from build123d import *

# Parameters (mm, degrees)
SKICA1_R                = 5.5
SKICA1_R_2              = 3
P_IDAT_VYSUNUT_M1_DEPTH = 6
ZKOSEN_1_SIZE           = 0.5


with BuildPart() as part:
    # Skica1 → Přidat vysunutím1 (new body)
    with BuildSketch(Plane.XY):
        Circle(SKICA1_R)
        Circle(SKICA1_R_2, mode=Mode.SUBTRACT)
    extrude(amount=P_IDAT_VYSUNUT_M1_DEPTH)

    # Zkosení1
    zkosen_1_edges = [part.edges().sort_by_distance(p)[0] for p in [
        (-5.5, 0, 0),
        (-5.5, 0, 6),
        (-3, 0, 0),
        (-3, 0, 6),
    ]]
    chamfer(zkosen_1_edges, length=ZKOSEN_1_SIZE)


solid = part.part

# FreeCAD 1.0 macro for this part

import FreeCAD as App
import Part
import Sketcher
from FreeCAD import Vector


def edges_at(feature, points):
    """Names of the edges that pass closest to the given points."""
    edges = feature.Shape.Edges
    near = lambda p: min(range(len(edges)), key=lambda i: edges[i].distToShape(Part.Vertex(*p))[0])
    return sorted({f"Edge{near(p) + 1}" for p in points})

doc = App.newDocument("Part")
body = doc.addObject("PartDesign::Body", "Body")

sketch1 = body.newObject("Sketcher::SketchObject", "Sketch")
sketch1.AttachmentSupport = (doc.getObject("XY_Plane"), [""])
sketch1.MapMode = "FlatFace"
sketch1.addGeometry(Part.Circle(Vector(0, 0, 0), Vector(0, 0, 1), 5.5), False)
sketch1.addGeometry(Part.Circle(Vector(0, 0, 0), Vector(0, 0, 1), 3), False)
sketch1.addConstraint(Sketcher.Constraint("Coincident", 0, 3, -1, 1))
sketch1.addConstraint(Sketcher.Constraint("Coincident", 1, 3, -1, 1))
sketch1.addConstraint(Sketcher.Constraint("Diameter", 0, 11.0))
sketch1.addConstraint(Sketcher.Constraint("Diameter", 1, 6.0))
pad1 = body.newObject("PartDesign::Pad", "Pad")
pad1.Profile = sketch1
pad1.Length = 6
doc.recompute()

chamfer = body.newObject("PartDesign::Chamfer", "Chamfer")
chamfer.Base = (pad1, edges_at(pad1, [
    (-5.5, 0, 0),
    (-5.5, 0, 6),
    (-3, 0, 0),
    (-3, 0, 6),
]))
chamfer.Size = 0.5

doc.recompute()
